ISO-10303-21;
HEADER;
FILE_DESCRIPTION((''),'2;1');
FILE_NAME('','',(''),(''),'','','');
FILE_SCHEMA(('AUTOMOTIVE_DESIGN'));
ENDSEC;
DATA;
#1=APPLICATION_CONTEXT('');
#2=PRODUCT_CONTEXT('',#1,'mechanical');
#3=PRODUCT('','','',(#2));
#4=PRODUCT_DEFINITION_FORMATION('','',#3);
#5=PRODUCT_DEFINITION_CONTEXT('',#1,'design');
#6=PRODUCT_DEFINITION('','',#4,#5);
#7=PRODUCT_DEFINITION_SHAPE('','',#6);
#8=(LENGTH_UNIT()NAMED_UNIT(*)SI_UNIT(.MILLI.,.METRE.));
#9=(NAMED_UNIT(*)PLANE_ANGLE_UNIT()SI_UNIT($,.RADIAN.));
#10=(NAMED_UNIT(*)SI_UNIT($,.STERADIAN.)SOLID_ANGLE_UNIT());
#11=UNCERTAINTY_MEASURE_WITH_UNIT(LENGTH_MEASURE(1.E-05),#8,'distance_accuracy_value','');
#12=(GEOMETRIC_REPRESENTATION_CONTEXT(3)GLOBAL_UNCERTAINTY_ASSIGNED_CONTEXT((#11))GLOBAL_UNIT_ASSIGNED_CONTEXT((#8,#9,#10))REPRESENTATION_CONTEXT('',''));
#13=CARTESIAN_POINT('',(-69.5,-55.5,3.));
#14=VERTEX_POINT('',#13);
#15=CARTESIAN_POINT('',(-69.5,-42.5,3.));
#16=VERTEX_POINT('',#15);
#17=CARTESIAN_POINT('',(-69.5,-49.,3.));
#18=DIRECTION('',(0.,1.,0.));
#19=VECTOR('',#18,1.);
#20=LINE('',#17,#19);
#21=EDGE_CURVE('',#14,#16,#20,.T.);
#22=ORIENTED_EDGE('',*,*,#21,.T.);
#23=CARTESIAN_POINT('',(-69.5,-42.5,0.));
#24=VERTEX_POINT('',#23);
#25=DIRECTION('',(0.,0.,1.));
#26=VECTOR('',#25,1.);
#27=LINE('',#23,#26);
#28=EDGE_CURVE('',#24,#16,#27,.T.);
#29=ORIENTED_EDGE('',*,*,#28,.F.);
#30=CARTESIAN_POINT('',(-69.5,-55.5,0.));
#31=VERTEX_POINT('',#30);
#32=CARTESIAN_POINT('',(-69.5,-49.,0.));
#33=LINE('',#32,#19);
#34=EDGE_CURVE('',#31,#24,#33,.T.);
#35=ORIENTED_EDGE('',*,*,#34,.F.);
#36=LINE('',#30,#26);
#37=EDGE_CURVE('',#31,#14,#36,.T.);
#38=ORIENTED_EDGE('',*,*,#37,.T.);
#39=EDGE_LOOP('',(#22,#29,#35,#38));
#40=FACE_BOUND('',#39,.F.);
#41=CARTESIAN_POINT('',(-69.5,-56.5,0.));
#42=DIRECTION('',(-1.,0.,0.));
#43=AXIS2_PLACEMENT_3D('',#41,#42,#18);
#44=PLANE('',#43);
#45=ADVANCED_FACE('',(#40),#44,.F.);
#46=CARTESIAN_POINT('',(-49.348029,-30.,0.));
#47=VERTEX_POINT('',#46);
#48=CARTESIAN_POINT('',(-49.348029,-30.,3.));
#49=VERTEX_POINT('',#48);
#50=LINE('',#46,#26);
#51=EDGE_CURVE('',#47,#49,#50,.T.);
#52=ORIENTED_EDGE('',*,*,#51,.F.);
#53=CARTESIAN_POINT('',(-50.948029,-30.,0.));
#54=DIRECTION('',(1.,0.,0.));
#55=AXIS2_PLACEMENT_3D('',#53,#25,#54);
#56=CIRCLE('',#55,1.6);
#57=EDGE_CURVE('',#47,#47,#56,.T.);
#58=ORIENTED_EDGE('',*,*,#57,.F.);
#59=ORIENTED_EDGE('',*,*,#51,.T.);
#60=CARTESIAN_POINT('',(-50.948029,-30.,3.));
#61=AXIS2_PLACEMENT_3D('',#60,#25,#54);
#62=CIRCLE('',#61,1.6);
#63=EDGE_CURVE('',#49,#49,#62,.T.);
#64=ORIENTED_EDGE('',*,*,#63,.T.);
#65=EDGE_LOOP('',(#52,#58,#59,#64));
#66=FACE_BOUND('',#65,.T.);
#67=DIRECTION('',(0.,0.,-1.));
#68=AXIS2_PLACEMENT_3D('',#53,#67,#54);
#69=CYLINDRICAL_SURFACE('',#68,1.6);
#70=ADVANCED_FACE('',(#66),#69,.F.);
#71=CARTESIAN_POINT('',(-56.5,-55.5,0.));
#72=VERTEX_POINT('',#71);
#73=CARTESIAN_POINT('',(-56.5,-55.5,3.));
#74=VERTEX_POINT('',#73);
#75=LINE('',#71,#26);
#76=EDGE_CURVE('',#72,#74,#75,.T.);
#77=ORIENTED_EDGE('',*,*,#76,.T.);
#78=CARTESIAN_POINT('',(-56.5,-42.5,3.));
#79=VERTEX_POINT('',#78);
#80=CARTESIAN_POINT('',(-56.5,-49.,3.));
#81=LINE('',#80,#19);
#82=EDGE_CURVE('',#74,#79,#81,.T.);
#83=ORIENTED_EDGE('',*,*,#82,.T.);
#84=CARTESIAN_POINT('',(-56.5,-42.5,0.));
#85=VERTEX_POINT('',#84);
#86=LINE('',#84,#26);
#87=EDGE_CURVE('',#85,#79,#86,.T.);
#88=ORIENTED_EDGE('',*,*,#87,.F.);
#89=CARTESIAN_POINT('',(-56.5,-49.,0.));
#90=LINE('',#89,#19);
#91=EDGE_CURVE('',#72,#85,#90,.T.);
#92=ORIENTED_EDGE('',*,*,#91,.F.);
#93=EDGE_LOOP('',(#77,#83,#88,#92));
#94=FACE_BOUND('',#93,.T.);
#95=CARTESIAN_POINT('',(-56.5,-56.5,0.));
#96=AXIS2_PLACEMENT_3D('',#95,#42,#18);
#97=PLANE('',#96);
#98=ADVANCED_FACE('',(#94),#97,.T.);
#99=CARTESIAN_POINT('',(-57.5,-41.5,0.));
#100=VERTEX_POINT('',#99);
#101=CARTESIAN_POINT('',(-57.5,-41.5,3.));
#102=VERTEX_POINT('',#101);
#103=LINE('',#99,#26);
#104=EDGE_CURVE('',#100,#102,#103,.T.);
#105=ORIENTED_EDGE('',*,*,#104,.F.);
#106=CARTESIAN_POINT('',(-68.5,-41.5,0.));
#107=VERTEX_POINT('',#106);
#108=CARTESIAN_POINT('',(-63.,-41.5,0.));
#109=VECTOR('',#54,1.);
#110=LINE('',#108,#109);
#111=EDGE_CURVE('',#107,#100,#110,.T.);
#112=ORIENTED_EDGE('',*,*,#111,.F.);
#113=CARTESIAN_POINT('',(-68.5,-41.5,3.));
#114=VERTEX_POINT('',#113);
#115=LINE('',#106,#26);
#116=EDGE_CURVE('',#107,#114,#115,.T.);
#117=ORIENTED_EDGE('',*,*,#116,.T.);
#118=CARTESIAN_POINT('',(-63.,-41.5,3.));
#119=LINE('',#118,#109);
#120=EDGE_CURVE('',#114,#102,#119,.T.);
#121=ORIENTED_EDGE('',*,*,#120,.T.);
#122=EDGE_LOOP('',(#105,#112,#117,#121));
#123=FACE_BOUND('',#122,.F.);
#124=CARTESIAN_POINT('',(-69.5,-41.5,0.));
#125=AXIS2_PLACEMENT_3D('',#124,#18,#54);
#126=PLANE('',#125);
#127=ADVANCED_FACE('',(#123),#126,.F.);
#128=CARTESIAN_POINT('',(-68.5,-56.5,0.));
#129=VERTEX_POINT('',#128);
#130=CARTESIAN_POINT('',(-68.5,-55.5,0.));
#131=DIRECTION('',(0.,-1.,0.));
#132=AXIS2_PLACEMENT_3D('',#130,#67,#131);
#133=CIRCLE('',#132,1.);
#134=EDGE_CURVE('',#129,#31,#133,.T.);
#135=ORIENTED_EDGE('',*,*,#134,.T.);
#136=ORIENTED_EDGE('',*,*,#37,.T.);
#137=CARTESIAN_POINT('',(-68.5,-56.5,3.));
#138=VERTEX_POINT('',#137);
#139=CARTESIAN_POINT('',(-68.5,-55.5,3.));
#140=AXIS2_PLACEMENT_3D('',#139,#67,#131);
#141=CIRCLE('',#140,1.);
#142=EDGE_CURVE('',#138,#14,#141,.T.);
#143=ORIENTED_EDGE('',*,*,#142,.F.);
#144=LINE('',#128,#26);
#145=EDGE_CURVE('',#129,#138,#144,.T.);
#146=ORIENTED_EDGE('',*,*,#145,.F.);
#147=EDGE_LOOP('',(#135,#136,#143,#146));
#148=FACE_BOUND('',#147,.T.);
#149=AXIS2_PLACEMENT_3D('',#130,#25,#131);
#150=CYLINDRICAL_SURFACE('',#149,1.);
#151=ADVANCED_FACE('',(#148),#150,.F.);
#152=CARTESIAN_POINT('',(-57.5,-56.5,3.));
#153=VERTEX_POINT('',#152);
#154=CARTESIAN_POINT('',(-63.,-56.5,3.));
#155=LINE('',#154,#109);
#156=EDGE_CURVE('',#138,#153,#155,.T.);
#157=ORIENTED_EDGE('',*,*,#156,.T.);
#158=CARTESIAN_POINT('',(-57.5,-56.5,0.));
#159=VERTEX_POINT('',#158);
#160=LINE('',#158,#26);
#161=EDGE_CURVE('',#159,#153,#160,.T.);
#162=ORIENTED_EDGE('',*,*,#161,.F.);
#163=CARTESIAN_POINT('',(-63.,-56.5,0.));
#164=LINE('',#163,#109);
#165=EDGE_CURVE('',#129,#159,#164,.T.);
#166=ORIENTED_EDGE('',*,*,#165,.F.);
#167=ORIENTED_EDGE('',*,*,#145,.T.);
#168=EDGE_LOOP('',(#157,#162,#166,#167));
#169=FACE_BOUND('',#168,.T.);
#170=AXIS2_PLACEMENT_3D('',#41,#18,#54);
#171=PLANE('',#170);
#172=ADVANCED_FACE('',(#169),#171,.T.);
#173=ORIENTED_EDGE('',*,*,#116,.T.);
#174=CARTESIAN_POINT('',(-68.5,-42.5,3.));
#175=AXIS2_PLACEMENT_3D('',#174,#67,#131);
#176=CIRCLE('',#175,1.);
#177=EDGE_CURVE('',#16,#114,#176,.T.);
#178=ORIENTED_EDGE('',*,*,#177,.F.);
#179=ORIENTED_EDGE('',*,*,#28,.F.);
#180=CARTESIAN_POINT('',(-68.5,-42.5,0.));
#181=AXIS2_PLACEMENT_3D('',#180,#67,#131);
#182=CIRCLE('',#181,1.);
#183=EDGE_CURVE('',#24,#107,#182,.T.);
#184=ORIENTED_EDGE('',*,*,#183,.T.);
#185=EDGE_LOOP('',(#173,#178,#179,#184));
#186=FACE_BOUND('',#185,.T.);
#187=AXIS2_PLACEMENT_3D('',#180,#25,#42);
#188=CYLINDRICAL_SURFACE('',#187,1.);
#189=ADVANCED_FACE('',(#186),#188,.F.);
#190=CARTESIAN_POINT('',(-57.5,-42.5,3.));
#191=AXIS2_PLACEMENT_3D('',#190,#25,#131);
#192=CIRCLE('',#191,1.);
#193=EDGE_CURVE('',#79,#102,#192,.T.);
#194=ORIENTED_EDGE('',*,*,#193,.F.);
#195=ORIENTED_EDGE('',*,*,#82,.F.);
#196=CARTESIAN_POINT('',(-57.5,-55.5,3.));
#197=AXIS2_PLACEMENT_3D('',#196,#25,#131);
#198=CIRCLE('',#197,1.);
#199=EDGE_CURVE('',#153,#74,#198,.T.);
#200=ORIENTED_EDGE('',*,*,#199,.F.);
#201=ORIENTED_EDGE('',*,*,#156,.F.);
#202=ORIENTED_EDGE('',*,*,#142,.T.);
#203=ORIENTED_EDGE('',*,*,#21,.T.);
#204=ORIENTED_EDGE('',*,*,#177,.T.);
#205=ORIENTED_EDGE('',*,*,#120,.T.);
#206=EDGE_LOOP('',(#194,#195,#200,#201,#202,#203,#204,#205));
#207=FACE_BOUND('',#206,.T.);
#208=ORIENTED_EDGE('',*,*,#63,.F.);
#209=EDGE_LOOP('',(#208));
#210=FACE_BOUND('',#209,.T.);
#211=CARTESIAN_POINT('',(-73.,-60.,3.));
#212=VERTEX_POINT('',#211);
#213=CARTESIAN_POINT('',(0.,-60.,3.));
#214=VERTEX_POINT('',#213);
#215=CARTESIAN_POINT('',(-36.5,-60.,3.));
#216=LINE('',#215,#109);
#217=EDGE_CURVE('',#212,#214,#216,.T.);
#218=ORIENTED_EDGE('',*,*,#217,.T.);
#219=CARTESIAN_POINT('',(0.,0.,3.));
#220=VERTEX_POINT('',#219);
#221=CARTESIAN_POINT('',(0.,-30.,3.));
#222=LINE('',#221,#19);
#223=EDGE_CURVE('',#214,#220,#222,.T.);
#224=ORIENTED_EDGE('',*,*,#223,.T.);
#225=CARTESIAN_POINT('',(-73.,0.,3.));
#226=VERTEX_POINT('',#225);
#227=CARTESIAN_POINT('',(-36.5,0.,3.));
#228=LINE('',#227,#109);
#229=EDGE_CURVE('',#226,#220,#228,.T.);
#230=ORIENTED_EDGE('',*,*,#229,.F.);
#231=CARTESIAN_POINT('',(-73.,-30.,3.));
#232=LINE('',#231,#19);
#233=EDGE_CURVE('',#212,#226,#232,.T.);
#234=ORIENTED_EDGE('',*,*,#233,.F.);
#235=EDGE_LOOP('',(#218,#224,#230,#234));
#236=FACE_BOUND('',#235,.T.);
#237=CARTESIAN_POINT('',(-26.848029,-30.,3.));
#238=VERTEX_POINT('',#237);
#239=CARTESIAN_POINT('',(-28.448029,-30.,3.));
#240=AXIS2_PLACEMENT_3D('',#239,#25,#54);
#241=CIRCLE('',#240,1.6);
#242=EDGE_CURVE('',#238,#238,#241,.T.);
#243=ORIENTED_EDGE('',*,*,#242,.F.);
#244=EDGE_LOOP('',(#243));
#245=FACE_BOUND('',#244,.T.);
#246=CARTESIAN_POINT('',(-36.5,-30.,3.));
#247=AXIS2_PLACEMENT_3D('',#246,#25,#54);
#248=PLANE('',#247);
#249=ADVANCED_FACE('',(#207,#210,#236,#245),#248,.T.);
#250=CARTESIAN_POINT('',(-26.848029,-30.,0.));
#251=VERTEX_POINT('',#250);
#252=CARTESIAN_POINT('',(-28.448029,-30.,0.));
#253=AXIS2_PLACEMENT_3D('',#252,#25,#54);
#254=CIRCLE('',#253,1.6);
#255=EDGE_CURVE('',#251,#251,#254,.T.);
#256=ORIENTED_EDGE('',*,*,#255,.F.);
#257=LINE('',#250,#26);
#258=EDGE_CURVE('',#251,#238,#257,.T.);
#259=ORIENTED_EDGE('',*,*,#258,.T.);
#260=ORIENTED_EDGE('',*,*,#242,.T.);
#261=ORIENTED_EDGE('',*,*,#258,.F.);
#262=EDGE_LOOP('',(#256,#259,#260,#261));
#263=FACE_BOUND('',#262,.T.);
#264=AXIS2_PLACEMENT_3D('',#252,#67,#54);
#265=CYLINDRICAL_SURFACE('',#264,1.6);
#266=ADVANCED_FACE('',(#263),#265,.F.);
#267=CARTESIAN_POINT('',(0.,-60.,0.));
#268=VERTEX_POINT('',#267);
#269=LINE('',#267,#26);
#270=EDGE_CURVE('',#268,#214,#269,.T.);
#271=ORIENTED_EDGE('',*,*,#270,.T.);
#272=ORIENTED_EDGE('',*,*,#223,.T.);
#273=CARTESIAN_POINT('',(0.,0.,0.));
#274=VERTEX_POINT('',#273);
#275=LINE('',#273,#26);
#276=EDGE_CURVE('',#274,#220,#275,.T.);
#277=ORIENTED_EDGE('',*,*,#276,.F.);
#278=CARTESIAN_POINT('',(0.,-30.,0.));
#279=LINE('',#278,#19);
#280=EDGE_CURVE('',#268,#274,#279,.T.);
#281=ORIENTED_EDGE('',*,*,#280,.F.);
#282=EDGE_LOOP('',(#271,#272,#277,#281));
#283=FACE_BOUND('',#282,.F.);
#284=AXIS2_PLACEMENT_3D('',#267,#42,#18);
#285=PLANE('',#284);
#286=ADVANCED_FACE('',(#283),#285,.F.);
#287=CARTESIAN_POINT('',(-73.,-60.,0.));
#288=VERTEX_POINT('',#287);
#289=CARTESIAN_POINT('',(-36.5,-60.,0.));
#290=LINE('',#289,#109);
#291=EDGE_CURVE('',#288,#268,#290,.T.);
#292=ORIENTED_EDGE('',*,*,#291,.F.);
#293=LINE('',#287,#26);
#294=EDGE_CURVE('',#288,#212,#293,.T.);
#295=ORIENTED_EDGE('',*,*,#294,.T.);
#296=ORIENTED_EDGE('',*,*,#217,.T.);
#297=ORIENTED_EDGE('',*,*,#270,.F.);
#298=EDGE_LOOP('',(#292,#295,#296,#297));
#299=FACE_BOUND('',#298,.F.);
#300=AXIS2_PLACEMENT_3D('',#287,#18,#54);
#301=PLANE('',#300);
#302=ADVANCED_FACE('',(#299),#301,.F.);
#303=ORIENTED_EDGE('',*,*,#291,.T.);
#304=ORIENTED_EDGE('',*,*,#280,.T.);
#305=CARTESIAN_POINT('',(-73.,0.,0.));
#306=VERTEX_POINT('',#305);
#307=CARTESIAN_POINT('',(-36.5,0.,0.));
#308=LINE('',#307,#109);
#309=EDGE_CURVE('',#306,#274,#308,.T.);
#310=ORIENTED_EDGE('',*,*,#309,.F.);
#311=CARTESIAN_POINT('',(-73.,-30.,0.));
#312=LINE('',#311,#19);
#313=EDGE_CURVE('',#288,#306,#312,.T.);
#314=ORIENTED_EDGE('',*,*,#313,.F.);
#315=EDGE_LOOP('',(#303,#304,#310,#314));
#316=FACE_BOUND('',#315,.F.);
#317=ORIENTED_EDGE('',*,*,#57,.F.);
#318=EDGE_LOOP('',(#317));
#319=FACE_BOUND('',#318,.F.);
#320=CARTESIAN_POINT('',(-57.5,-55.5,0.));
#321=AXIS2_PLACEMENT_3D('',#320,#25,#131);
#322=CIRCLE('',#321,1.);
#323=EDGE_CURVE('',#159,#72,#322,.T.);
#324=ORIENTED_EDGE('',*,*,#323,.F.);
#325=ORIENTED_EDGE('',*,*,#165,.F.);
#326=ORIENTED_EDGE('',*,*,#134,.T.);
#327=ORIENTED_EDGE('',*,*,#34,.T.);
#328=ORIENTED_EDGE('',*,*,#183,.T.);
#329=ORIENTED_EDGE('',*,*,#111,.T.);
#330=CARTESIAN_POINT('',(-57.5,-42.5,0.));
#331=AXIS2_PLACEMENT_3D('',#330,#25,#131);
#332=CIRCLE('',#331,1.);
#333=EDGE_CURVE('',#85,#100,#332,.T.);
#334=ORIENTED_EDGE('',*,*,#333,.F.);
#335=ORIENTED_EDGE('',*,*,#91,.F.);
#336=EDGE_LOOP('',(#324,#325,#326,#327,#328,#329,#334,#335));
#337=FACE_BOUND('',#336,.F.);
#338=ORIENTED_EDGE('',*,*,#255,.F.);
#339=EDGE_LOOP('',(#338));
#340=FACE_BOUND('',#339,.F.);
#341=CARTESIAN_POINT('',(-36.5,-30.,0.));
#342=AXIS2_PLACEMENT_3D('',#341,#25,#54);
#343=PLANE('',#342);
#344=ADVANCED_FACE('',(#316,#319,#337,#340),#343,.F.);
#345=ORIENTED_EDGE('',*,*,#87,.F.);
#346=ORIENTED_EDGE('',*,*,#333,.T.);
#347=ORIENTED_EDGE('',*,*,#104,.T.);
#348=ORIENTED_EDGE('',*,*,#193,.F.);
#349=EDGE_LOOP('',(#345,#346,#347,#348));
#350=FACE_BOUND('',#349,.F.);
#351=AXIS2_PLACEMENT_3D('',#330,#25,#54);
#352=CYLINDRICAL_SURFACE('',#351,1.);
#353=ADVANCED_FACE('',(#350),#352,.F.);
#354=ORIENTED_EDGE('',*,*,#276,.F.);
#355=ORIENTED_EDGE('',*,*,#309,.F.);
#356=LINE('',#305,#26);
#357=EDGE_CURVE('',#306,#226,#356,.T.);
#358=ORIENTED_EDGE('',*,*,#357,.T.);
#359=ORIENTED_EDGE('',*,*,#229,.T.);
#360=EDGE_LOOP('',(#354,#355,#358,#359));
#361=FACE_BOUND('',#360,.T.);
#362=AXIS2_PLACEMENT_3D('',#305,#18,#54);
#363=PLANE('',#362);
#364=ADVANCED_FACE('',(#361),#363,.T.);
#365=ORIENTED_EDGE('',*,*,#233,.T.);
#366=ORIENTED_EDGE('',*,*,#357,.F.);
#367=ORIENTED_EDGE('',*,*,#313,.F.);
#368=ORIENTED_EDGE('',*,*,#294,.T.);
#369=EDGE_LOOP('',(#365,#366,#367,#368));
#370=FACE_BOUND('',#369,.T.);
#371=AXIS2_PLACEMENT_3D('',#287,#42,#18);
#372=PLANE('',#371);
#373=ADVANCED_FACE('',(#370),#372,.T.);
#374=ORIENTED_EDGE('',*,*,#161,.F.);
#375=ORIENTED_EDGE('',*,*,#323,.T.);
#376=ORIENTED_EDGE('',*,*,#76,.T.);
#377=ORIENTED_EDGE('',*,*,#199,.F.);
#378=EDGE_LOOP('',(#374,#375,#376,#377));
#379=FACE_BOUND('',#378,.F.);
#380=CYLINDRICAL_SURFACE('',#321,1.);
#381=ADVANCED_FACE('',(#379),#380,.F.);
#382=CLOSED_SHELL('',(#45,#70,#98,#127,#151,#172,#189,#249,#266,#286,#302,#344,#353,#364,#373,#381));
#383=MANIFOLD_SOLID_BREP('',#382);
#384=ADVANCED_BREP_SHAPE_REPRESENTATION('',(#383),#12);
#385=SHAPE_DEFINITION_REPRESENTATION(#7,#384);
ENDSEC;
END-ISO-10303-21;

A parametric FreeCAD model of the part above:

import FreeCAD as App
import Part
import Sketcher
Q = App.Units.Quantity


def edges_at(feature, points):
    """Names of the edges that pass closest to the given points."""
    edges = feature.Shape.Edges
    near = lambda p: min(range(len(edges)), key=lambda i: edges[i].distToShape(Part.Vertex(*p))[0])
    return sorted({f"Edge{near(p) + 1}" for p in points})


def add_polygon(sketch, points):
    """Adds a closed chain of lines whose ends are joined by coincident constraints."""
    first, n = sketch.GeometryCount, len(points)
    for a, b in zip(points, points[1:] + points[:1]):
        sketch.addGeometry(Part.LineSegment(App.Vector(*a, 0), App.Vector(*b, 0)), False)
    for i in range(n):
        sketch.addConstraint(Sketcher.Constraint("Coincident", first + i, 2, first + (i + 1) % n, 1))

doc = App.newDocument("Part")
params = doc.addObject("Spreadsheet::Sheet", "Params")
for row, (alias, value) in enumerate([
    ("sketch1_diameter", "3.2 mm"),
    ("sketch1_width", "73 mm"),
    ("sketch1_width2", "13 mm"),
    ("sketch1_height", "60 mm"),
    ("sketch1_height2", "15 mm"),
    ("pad1_length", "3 mm"),
    ("fillet_radius", "1 mm"),
], start=1):
    params.set(f"A{row}", alias)
    params.set(f"B{row}", "=" + value)
    params.setAlias(f"B{row}", alias)

body = doc.addObject("PartDesign::Body", "Body")

# Sketch on XY plane
sketch1 = body.newObject("Sketcher::SketchObject", "Sketch")
sketch1.AttachmentSupport = (doc.getObject("XY_Plane"), [""])
sketch1.MapMode = "FlatFace"
add_polygon(sketch1, [(-73, 0), (-73, -60), (0, -60), (0, 0)])  # lines 0-3
add_polygon(sketch1, [(-56.5, -56.5), (-69.5, -56.5), (-69.5, -41.5), (-56.5, -41.5)])  # lines 4-7
sketch1.addGeometry(Part.Circle(App.Vector(-50.9, -30, 0), App.Vector(0, 0, 1), 1.6), False)  # 8
sketch1.addGeometry(Part.Circle(App.Vector(-28.4, -30, 0), App.Vector(0, 0, 1), 1.6), False)  # 9
sketch1.addConstraint(Sketcher.Constraint("Vertical", 0))
sketch1.addConstraint(Sketcher.Constraint("Horizontal", 1))
sketch1.addConstraint(Sketcher.Constraint("Vertical", 2))
sketch1.addConstraint(Sketcher.Constraint("Horizontal", 3))
sketch1.addConstraint(Sketcher.Constraint("Horizontal", 4))
sketch1.addConstraint(Sketcher.Constraint("Vertical", 5))
sketch1.addConstraint(Sketcher.Constraint("Horizontal", 6))
sketch1.addConstraint(Sketcher.Constraint("Vertical", 7))
sketch1.addConstraint(Sketcher.Constraint("Coincident", 2, 2, -1, 1))
sketch1.addConstraint(Sketcher.Constraint("Equal", 8, 9))
sketch1.addConstraint(Sketcher.Constraint("Horizontal", 8, 3, 9, 3))
sketch1.addConstraint(Sketcher.Constraint("Diameter", 8, Q("3.2 mm")))
sketch1.addConstraint(Sketcher.Constraint("DistanceX", 1, 1, 1, 2, Q("73 mm")))
sketch1.addConstraint(Sketcher.Constraint("DistanceX", 4, 2, 4, 1, Q("13 mm")))
sketch1.addConstraint(Sketcher.Constraint("DistanceY", 0, 2, 0, 1, Q("60 mm")))
sketch1.addConstraint(Sketcher.Constraint("DistanceY", 5, 1, 5, 2, Q("15 mm")))
sketch1.addConstraint(Sketcher.Constraint("DistanceY", 8, 3, -1, 1, Q("30 mm")))
sketch1.addConstraint(Sketcher.Constraint("DistanceX", 4, 2, -1, 1, Q("69.5 mm")))
sketch1.addConstraint(Sketcher.Constraint("DistanceY", 4, 2, -1, 1, Q("56.5 mm")))
sketch1.addConstraint(Sketcher.Constraint("DistanceX", 8, 3, 9, 3, Q("22.5 mm")))
sketch1.addConstraint(Sketcher.Constraint("DistanceX", 8, 3, -1, 1, Q("50.948029 mm")))
sketch1.setExpression("Constraints[19]", "Params.sketch1_diameter")
sketch1.setExpression("Constraints[20]", "Params.sketch1_width")
sketch1.setExpression("Constraints[21]", "Params.sketch1_width2")
sketch1.setExpression("Constraints[22]", "Params.sketch1_height")
sketch1.setExpression("Constraints[23]", "Params.sketch1_height2")
pad1 = body.newObject("PartDesign::Pad", "Pad")
pad1.Profile = sketch1
pad1.setExpression("Length", "Params.pad1_length")
doc.recompute()

fillet = body.newObject("PartDesign::Fillet", "Fillet")
fillet.Base = (pad1, edges_at(pad1, [
    (-69.5, -41.5, 1.5),
    (-56.5, -56.5, 1.5),
    (-69.5, -56.5, 1.5),
    (-56.5, -41.5, 1.5),
]))
fillet.setExpression("Radius", "Params.fillet_radius")

doc.recompute()
